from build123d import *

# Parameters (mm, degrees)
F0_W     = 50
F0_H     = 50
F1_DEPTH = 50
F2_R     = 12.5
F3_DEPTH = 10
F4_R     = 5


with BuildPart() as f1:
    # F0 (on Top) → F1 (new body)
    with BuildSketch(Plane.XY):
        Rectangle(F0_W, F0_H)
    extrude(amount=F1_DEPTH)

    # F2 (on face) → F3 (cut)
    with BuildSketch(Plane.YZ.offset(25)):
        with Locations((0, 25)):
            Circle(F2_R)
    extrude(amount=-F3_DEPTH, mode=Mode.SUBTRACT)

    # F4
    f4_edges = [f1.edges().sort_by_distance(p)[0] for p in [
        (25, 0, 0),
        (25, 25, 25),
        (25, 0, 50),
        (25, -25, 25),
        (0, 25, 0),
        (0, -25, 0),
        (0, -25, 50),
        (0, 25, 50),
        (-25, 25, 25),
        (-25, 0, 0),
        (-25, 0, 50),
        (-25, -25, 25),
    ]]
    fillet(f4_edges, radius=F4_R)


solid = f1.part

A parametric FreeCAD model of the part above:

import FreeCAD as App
import Part
import Sketcher

V = App.Vector


def edges_at(feature, points):
    """Names of the edges that pass closest to the given points."""
    edges = feature.Shape.Edges
    near = lambda p: min(range(len(edges)), key=lambda i: edges[i].distToShape(Part.Vertex(*p))[0])
    return sorted({f"Edge{near(p) + 1}" for p in points})

doc = App.newDocument("Part")
body = doc.addObject("PartDesign::Body", "Body")

# Sketch on XY plane
sketch1 = body.newObject("Sketcher::SketchObject", "Sketch")
sketch1.AttachmentSupport = (doc.getObject("XY_Plane"), [""])
sketch1.MapMode = "FlatFace"
sketch1.addGeometry([
    Part.LineSegment(V(-25, 25, 0), V(-25, -25, 0)),
    Part.LineSegment(V(-25, -25, 0), V(25, -25, 0)),
    Part.LineSegment(V(25, -25, 0), V(25, 25, 0)),
    Part.LineSegment(V(25, 25, 0), V(-25, 25, 0)),
], False)
sketch1.addConstraint([
    Sketcher.Constraint("Coincident", 0, 2, 1, 1),
    Sketcher.Constraint("Coincident", 1, 2, 2, 1),
    Sketcher.Constraint("Coincident", 2, 2, 3, 1),
    Sketcher.Constraint("Coincident", 3, 2, 0, 1),
    Sketcher.Constraint("Vertical", 0),
    Sketcher.Constraint("Horizontal", 1),
    Sketcher.Constraint("Vertical", 2),
    Sketcher.Constraint("Horizontal", 3),
    Sketcher.Constraint("Symmetric", 0, 2, 2, 2, -1, 1),
    Sketcher.Constraint("Equal", 3, 0),
    Sketcher.Constraint("DistanceX", 1, 1, 1, 2, 50.0),
])
pad1 = body.newObject("PartDesign::Pad", "Pad")
pad1.Profile = sketch1
pad1.Length = 50

# Sketch on YZ plane
sketch2 = body.newObject("Sketcher::SketchObject", "Sketch001")
sketch2.AttachmentSupport = (doc.getObject("YZ_Plane"), [""])
sketch2.MapMode = "FlatFace"
sketch2.AttachmentOffset = App.Placement(V(0, 0, 25), App.Rotation())
sketch2.addGeometry(Part.Circle(V(0, 25, 0), V(0, 0, 1), 12), False)
sketch2.addConstraint([
    Sketcher.Constraint("PointOnObject", 0, 3, -2),
    Sketcher.Constraint("Diameter", 0, 25.0),
    Sketcher.Constraint("DistanceY", -1, 1, 0, 3, 25.0),
])
pocket1 = body.newObject("PartDesign::Pocket", "Pocket")
pocket1.Profile = sketch2
pocket1.Length = 10
doc.recompute()

fillet = body.newObject("PartDesign::Fillet", "Fillet")
fillet.Base = (pocket1, edges_at(pocket1, [
    (25, 0, 0),
    (25, 25, 25),
    (25, 0, 50),
    (25, -25, 25),
    (0, 25, 0),
    (0, -25, 0),
    (0, -25, 50),
    (0, 25, 50),
    (-25, 25, 25),
    (-25, 0, 0),
    (-25, 0, 50),
    (-25, -25, 25),
]))
fillet.Radius = 5

doc.recompute()
